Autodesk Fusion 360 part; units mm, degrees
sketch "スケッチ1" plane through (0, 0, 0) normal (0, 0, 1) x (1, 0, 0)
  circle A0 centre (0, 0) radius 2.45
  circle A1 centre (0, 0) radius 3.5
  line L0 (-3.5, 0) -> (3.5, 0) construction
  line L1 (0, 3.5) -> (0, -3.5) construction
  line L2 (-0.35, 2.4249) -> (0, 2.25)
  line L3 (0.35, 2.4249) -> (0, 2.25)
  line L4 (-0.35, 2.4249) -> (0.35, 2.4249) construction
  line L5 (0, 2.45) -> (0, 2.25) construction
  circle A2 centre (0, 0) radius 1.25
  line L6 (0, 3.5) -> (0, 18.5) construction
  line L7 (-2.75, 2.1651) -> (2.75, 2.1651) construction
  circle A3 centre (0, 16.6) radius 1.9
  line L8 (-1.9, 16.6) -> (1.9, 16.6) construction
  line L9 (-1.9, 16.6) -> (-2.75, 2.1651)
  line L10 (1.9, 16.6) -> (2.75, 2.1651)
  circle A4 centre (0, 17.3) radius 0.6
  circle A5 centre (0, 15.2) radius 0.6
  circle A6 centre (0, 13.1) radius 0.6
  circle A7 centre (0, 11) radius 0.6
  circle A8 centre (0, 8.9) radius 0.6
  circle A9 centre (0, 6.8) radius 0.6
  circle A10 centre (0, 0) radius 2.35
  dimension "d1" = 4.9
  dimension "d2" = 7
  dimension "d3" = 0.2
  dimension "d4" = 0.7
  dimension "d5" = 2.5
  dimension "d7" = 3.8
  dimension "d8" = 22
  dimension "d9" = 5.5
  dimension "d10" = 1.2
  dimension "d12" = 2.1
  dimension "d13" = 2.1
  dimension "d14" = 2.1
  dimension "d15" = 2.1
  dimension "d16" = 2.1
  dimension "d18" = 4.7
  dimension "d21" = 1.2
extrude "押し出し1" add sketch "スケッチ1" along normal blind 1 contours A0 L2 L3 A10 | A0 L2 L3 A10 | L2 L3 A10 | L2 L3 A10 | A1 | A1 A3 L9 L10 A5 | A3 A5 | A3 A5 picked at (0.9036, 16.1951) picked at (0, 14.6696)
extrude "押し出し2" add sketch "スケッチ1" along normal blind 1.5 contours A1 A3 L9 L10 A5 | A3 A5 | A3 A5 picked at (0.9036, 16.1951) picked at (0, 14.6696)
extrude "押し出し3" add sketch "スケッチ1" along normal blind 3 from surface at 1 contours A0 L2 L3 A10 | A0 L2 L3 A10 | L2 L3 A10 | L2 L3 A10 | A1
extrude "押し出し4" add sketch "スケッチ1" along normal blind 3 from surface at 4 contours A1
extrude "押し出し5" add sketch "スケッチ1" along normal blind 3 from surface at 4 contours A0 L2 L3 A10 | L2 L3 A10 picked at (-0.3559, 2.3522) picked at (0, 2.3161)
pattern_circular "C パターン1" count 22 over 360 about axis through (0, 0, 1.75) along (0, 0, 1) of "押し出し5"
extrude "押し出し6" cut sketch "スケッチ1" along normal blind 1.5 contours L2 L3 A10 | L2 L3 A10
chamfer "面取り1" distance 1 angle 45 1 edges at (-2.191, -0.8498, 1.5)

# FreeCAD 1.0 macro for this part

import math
import FreeCAD as App
import Part
import Sketcher


def edges_at(feature, points):
    """Names of the edges that pass closest to the given points."""
    edges = feature.Shape.Edges
    near = lambda p: min(range(len(edges)), key=lambda i: edges[i].distToShape(Part.Vertex(*p))[0])
    return sorted({f"Edge{near(p) + 1}" for p in points})

doc = App.newDocument("Part")
body = doc.addObject("PartDesign::Body", "Body")

# Sketch on XY plane
sketch1 = body.newObject("Sketcher::SketchObject", "Sketch")
sketch1.AttachmentSupport = (doc.getObject("XY_Plane"), [""])
sketch1.MapMode = "FlatFace"
sketch1.addGeometry([
    Part.ArcOfCircle(Part.Circle(App.Vector(0, 0, 0), App.Vector(0, 0, 1), 3.5), math.radians(142), math.radians(398)),  # 0
    Part.LineSegment(App.Vector(2.8, 2.2, 0), App.Vector(1.9, 16.6, 0)),  # 1
    Part.ArcOfCircle(Part.Circle(App.Vector(0, 16.6, 0), App.Vector(0, 0, 1), 1.9), math.radians(0), math.radians(180)),  # 2
    Part.LineSegment(App.Vector(-1.9, 16.6, 0), App.Vector(-2.8, 2.2, 0)),  # 3
    Part.Circle(App.Vector(0, 0, 0), App.Vector(0, 0, 1), 1.2),  # 4
    Part.Circle(App.Vector(0, 13.1, 0), App.Vector(0, 0, 1), 0.6),  # 5
    Part.Circle(App.Vector(0, 6.8, 0), App.Vector(0, 0, 1), 0.6),  # 6
    Part.Circle(App.Vector(0, 8.9, 0), App.Vector(0, 0, 1), 0.6),  # 7
    Part.Circle(App.Vector(0, 11, 0), App.Vector(0, 0, 1), 0.6),  # 8
    Part.ArcOfCircle(Part.Circle(App.Vector(0, 16.6, 0), App.Vector(0, 0, 1), 1.9), math.radians(-102), math.radians(-78)),  # 9
    Part.ArcOfCircle(Part.Circle(App.Vector(0, 15.2, 0), App.Vector(0, 0, 1), 0.6), math.radians(-50), math.radians(230)),  # 10
    Part.Circle(App.Vector(0, 17.3, 0), App.Vector(0, 0, 1), 0.6),  # 11
], False)
sketch1.addConstraint([
    Sketcher.Constraint("Coincident", 0, 2, 1, 1),
    Sketcher.Constraint("Coincident", 1, 2, 2, 1),
    Sketcher.Constraint("Coincident", 2, 2, 3, 1),
    Sketcher.Constraint("Coincident", 3, 2, 0, 1),
    Sketcher.Constraint("Coincident", 9, 1, 10, 2),
    Sketcher.Constraint("Coincident", 10, 1, 9, 2),
    Sketcher.Constraint("Coincident", 0, 3, -1, 1),
    Sketcher.Constraint("Coincident", 4, 3, -1, 1),
    Sketcher.Constraint("Coincident", 9, 3, 2, 3),
    Sketcher.Constraint("Equal", 5, 6),
    Sketcher.Constraint("Equal", 6, 7),
    Sketcher.Constraint("Equal", 7, 8),
    Sketcher.Constraint("Equal", 2, 9),
    Sketcher.Constraint("Equal", 8, 10),
    Sketcher.Constraint("Equal", 10, 11),
    Sketcher.Constraint("Symmetric", 1, 2, 2, 2, -2),
    Sketcher.Constraint("PointOnObject", 5, 3, -2),
    Sketcher.Constraint("PointOnObject", 6, 3, -2),
    Sketcher.Constraint("PointOnObject", 7, 3, -2),
    Sketcher.Constraint("PointOnObject", 8, 3, -2),
    Sketcher.Constraint("PointOnObject", 10, 3, -2),
    Sketcher.Constraint("PointOnObject", 11, 3, -2),
    Sketcher.Constraint("Horizontal", 9, 3, 1, 2),
    Sketcher.Constraint("Horizontal", 0, 2, 3, 2),
    Sketcher.Constraint("Diameter", 4, 2.5),
    Sketcher.Constraint("Diameter", 5, 1.2),
    Sketcher.Constraint("Radius", 0, 3.5),
    Sketcher.Constraint("Radius", 2, 1.9),
    Sketcher.Constraint("DistanceY", 6, 3, 7, 3, 2.1),
    Sketcher.Constraint("DistanceY", 8, 3, 5, 3, 2.1),
    Sketcher.Constraint("DistanceY", 7, 3, 8, 3, 2.1),
    Sketcher.Constraint("DistanceY", 5, 3, 10, 3, 2.1),
    Sketcher.Constraint("DistanceY", 2, 3, 11, 3, 0.7),
    Sketcher.Constraint("DistanceY", 10, 3, 11, 3, 2.1),
    Sketcher.Constraint("DistanceX", 3, 2, 0, 2, 5.5),
    Sketcher.Constraint("DistanceY", -1, 1, 8, 3, 11.0),
])
pad1 = body.newObject("PartDesign::Pad", "Pad")
pad1.Profile = sketch1
pad1.Length = 1

# Sketch on XY plane
sketch2 = body.newObject("Sketcher::SketchObject", "Sketch001")
sketch2.AttachmentSupport = (doc.getObject("XY_Plane"), [""])
sketch2.MapMode = "FlatFace"
sketch2.addGeometry([
    Part.ArcOfCircle(Part.Circle(App.Vector(0, 0, 0), App.Vector(0, 0, 1), 3.5), math.radians(38), math.radians(142)),  # 0
    Part.LineSegment(App.Vector(2.8, 2.2, 0), App.Vector(1.9, 16.6, 0)),  # 1
    Part.ArcOfCircle(Part.Circle(App.Vector(0, 16.6, 0), App.Vector(0, 0, 1), 1.9), math.radians(0), math.radians(180)),  # 2
    Part.LineSegment(App.Vector(-1.9, 16.6, 0), App.Vector(-2.8, 2.2, 0)),  # 3
    Part.Circle(App.Vector(0, 6.8, 0), App.Vector(0, 0, 1), 0.6),  # 4
    Part.Circle(App.Vector(0, 8.9, 0), App.Vector(0, 0, 1), 0.6),  # 5
    Part.Circle(App.Vector(0, 11, 0), App.Vector(0, 0, 1), 0.6),  # 6
    Part.Circle(App.Vector(0, 13.1, 0), App.Vector(0, 0, 1), 0.6),  # 7
    Part.ArcOfCircle(Part.Circle(App.Vector(0, 16.6, 0), App.Vector(0, 0, 1), 1.9), math.radians(-102), math.radians(-78)),  # 8
    Part.ArcOfCircle(Part.Circle(App.Vector(0, 15.2, 0), App.Vector(0, 0, 1), 0.6), math.radians(-50), math.radians(230)),  # 9
    Part.Circle(App.Vector(0, 17.3, 0), App.Vector(0, 0, 1), 0.6),  # 10
], False)
sketch2.addConstraint([
    Sketcher.Constraint("Coincident", 0, 1, 1, 1),
    Sketcher.Constraint("Coincident", 1, 2, 2, 1),
    Sketcher.Constraint("Coincident", 2, 2, 3, 1),
    Sketcher.Constraint("Coincident", 3, 2, 0, 2),
    Sketcher.Constraint("Coincident", 8, 1, 9, 2),
    Sketcher.Constraint("Coincident", 9, 1, 8, 2),
    Sketcher.Constraint("Coincident", 0, 3, -1, 1),
    Sketcher.Constraint("Coincident", 8, 3, 2, 3),
    Sketcher.Constraint("Equal", 4, 5),
    Sketcher.Constraint("Equal", 5, 6),
    Sketcher.Constraint("Equal", 6, 7),
    Sketcher.Constraint("Equal", 2, 8),
    Sketcher.Constraint("Equal", 7, 9),
    Sketcher.Constraint("Equal", 9, 10),
    Sketcher.Constraint("Symmetric", 1, 2, 2, 2, -2),
    Sketcher.Constraint("PointOnObject", 4, 3, -2),
    Sketcher.Constraint("PointOnObject", 5, 3, -2),
    Sketcher.Constraint("PointOnObject", 6, 3, -2),
    Sketcher.Constraint("PointOnObject", 7, 3, -2),
    Sketcher.Constraint("PointOnObject", 9, 3, -2),
    Sketcher.Constraint("PointOnObject", 10, 3, -2),
    Sketcher.Constraint("Horizontal", 8, 3, 1, 2),
    Sketcher.Constraint("Horizontal", 0, 1, 3, 2),
    Sketcher.Constraint("Diameter", 4, 1.2),
    Sketcher.Constraint("Radius", 0, 3.5),
    Sketcher.Constraint("Radius", 2, 1.9),
    Sketcher.Constraint("DistanceY", 4, 3, 5, 3, 2.1),
    Sketcher.Constraint("DistanceY", 5, 3, 6, 3, 2.1),
    Sketcher.Constraint("DistanceY", 6, 3, 7, 3, 2.1),
    Sketcher.Constraint("DistanceY", 7, 3, 9, 3, 2.1),
    Sketcher.Constraint("DistanceY", 2, 3, 10, 3, 0.7),
    Sketcher.Constraint("DistanceY", 9, 3, 10, 3, 2.1),
    Sketcher.Constraint("DistanceX", 3, 2, 0, 1, 5.5),
    Sketcher.Constraint("DistanceY", -1, 1, 6, 3, 11.0),
])
pad2 = body.newObject("PartDesign::Pad", "Pad001")
pad2.Profile = sketch2
pad2.Length = 1.5

# Sketch on XY plane
sketch3 = body.newObject("Sketcher::SketchObject", "Sketch002")
sketch3.AttachmentSupport = (doc.getObject("XY_Plane"), [""])
sketch3.MapMode = "FlatFace"
sketch3.AttachmentOffset = App.Placement(App.Vector(0, 0, 1), App.Rotation())
sketch3.addGeometry([
    Part.Circle(App.Vector(0, 0, 0), App.Vector(0, 0, 1), 3.5),
    Part.Circle(App.Vector(0, 0, 0), App.Vector(0, 0, 1), 1.2),
], False)
sketch3.addConstraint([
    Sketcher.Constraint("Coincident", 0, 3, -1, 1),
    Sketcher.Constraint("Coincident", 1, 3, -1, 1),
    Sketcher.Constraint("Diameter", 0, 7.0),
    Sketcher.Constraint("Diameter", 1, 2.5),
])
pad3 = body.newObject("PartDesign::Pad", "Pad002")
pad3.Profile = sketch3
pad3.Length = 3

# Sketch on XY plane
sketch4 = body.newObject("Sketcher::SketchObject", "Sketch003")
sketch4.AttachmentSupport = (doc.getObject("XY_Plane"), [""])
sketch4.MapMode = "FlatFace"
sketch4.AttachmentOffset = App.Placement(App.Vector(0, 0, 4), App.Rotation())
sketch4.addGeometry([
    Part.Circle(App.Vector(0, 0, 0), App.Vector(0, 0, 1), 3.5),
    Part.Circle(App.Vector(0, 0, 0), App.Vector(0, 0, 1), 2.5),
], False)
sketch4.addConstraint([
    Sketcher.Constraint("Coincident", 0, 3, -1, 1),
    Sketcher.Constraint("Coincident", 1, 3, -1, 1),
    Sketcher.Constraint("Diameter", 0, 7.0),
    Sketcher.Constraint("Diameter", 1, 4.9),
])
pad4 = body.newObject("PartDesign::Pad", "Pad003")
pad4.Profile = sketch4
pad4.Length = 3

# Sketch on XY plane
sketch5 = body.newObject("Sketcher::SketchObject", "Sketch004")
sketch5.AttachmentSupport = (doc.getObject("XY_Plane"), [""])
sketch5.MapMode = "FlatFace"
sketch5.AttachmentOffset = App.Placement(App.Vector(0, 0, 4), App.Rotation())
sketch5.addGeometry([
    Part.ArcOfCircle(Part.Circle(App.Vector(0, 0, 0), App.Vector(0, 0, 1), 2.45), math.radians(98), math.radians(442)),  # 0
    Part.LineSegment(App.Vector(0.35, 2.42, 0), App.Vector(0.19, 2.34, 0)),  # 1
    Part.ArcOfCircle(Part.Circle(App.Vector(0, 0, 0), App.Vector(0, 0, 1), 2.35), math.radians(95), math.radians(445)),  # 2
    Part.LineSegment(App.Vector(-0.19, 2.34, 0), App.Vector(-0.35, 2.42, 0)),  # 3
    Part.LineSegment(App.Vector(0, 2.25, 0), App.Vector(0.19, 2.34, 0)),  # 4
    Part.ArcOfCircle(Part.Circle(App.Vector(0, 0, 0), App.Vector(0, 0, 1), 2.35), math.radians(85.47), math.radians(94.53)),  # 5
    Part.LineSegment(App.Vector(-0.19, 2.34, 0), App.Vector(0, 2.25, 0)),  # 6
], False)
sketch5.addConstraint([
    Sketcher.Constraint("Coincident", 0, 2, 1, 1),
    Sketcher.Constraint("Coincident", 1, 2, 2, 2),
    Sketcher.Constraint("Coincident", 2, 1, 3, 1),
    Sketcher.Constraint("Coincident", 3, 2, 0, 1),
    Sketcher.Constraint("Coincident", 4, 2, 5, 1),
    Sketcher.Constraint("Coincident", 5, 2, 6, 1),
    Sketcher.Constraint("Coincident", 6, 2, 4, 1),
    Sketcher.Constraint("Coincident", 0, 3, -1, 1),
    Sketcher.Constraint("Coincident", 2, 3, -1, 1),
    Sketcher.Constraint("Coincident", 5, 3, -1, 1),
    Sketcher.Constraint("Coincident", 4, 2, 1, 2),
    Sketcher.Constraint("PointOnObject", 6, 2, -2),
    Sketcher.Constraint("Parallel", 1, 4),
    Sketcher.Constraint("Parallel", 3, 6),
    Sketcher.Constraint("Horizontal", 1, 2, 2, 1),
    Sketcher.Constraint("Horizontal", 0, 2, 3, 2),
    Sketcher.Constraint("Radius", 0, 2.45),
    Sketcher.Constraint("Radius", 2, 2.35),
    Sketcher.Constraint("DistanceX", 3, 2, 0, 2, 0.7),
    Sketcher.Constraint("DistanceY", -1, 1, 6, 2, 2.25),
])
pad5 = body.newObject("PartDesign::Pad", "Pad004")
pad5.Profile = sketch5
pad5.Length = 3
doc.recompute()

polarpattern = body.newObject("PartDesign::PolarPattern", "PolarPattern")
polarpattern.Originals = [pad5]
polarpattern.Axis = (doc.getObject("Z_Axis"), [""])
polarpattern.Angle = 360
polarpattern.Occurrences = 22
body.Tip = polarpattern

# Sketch on XY plane
sketch6 = body.newObject("Sketcher::SketchObject", "Sketch005")
sketch6.AttachmentSupport = (doc.getObject("XY_Plane"), [""])
sketch6.MapMode = "FlatFace"
sketch6.addGeometry([
    Part.Circle(App.Vector(0, 0, 0), App.Vector(0, 0, 1), 2.4),
    Part.Circle(App.Vector(0, 0, 0), App.Vector(0, 0, 1), 1.2),
], False)
sketch6.addConstraint([
    Sketcher.Constraint("Coincident", 0, 3, -1, 1),
    Sketcher.Constraint("Coincident", 1, 3, -1, 1),
    Sketcher.Constraint("Diameter", 0, 4.7),
    Sketcher.Constraint("Diameter", 1, 2.5),
])
pocket1 = body.newObject("PartDesign::Pocket", "Pocket")
pocket1.Profile = sketch6
pocket1.Length = 1.5
pocket1.Reversed = True
doc.recompute()

chamfer = body.newObject("PartDesign::Chamfer", "Chamfer")
chamfer.Base = (pocket1, edges_at(pocket1, [(-2.191, -0.85, 1.5)]))
chamfer.Size = 1

doc.recompute()
